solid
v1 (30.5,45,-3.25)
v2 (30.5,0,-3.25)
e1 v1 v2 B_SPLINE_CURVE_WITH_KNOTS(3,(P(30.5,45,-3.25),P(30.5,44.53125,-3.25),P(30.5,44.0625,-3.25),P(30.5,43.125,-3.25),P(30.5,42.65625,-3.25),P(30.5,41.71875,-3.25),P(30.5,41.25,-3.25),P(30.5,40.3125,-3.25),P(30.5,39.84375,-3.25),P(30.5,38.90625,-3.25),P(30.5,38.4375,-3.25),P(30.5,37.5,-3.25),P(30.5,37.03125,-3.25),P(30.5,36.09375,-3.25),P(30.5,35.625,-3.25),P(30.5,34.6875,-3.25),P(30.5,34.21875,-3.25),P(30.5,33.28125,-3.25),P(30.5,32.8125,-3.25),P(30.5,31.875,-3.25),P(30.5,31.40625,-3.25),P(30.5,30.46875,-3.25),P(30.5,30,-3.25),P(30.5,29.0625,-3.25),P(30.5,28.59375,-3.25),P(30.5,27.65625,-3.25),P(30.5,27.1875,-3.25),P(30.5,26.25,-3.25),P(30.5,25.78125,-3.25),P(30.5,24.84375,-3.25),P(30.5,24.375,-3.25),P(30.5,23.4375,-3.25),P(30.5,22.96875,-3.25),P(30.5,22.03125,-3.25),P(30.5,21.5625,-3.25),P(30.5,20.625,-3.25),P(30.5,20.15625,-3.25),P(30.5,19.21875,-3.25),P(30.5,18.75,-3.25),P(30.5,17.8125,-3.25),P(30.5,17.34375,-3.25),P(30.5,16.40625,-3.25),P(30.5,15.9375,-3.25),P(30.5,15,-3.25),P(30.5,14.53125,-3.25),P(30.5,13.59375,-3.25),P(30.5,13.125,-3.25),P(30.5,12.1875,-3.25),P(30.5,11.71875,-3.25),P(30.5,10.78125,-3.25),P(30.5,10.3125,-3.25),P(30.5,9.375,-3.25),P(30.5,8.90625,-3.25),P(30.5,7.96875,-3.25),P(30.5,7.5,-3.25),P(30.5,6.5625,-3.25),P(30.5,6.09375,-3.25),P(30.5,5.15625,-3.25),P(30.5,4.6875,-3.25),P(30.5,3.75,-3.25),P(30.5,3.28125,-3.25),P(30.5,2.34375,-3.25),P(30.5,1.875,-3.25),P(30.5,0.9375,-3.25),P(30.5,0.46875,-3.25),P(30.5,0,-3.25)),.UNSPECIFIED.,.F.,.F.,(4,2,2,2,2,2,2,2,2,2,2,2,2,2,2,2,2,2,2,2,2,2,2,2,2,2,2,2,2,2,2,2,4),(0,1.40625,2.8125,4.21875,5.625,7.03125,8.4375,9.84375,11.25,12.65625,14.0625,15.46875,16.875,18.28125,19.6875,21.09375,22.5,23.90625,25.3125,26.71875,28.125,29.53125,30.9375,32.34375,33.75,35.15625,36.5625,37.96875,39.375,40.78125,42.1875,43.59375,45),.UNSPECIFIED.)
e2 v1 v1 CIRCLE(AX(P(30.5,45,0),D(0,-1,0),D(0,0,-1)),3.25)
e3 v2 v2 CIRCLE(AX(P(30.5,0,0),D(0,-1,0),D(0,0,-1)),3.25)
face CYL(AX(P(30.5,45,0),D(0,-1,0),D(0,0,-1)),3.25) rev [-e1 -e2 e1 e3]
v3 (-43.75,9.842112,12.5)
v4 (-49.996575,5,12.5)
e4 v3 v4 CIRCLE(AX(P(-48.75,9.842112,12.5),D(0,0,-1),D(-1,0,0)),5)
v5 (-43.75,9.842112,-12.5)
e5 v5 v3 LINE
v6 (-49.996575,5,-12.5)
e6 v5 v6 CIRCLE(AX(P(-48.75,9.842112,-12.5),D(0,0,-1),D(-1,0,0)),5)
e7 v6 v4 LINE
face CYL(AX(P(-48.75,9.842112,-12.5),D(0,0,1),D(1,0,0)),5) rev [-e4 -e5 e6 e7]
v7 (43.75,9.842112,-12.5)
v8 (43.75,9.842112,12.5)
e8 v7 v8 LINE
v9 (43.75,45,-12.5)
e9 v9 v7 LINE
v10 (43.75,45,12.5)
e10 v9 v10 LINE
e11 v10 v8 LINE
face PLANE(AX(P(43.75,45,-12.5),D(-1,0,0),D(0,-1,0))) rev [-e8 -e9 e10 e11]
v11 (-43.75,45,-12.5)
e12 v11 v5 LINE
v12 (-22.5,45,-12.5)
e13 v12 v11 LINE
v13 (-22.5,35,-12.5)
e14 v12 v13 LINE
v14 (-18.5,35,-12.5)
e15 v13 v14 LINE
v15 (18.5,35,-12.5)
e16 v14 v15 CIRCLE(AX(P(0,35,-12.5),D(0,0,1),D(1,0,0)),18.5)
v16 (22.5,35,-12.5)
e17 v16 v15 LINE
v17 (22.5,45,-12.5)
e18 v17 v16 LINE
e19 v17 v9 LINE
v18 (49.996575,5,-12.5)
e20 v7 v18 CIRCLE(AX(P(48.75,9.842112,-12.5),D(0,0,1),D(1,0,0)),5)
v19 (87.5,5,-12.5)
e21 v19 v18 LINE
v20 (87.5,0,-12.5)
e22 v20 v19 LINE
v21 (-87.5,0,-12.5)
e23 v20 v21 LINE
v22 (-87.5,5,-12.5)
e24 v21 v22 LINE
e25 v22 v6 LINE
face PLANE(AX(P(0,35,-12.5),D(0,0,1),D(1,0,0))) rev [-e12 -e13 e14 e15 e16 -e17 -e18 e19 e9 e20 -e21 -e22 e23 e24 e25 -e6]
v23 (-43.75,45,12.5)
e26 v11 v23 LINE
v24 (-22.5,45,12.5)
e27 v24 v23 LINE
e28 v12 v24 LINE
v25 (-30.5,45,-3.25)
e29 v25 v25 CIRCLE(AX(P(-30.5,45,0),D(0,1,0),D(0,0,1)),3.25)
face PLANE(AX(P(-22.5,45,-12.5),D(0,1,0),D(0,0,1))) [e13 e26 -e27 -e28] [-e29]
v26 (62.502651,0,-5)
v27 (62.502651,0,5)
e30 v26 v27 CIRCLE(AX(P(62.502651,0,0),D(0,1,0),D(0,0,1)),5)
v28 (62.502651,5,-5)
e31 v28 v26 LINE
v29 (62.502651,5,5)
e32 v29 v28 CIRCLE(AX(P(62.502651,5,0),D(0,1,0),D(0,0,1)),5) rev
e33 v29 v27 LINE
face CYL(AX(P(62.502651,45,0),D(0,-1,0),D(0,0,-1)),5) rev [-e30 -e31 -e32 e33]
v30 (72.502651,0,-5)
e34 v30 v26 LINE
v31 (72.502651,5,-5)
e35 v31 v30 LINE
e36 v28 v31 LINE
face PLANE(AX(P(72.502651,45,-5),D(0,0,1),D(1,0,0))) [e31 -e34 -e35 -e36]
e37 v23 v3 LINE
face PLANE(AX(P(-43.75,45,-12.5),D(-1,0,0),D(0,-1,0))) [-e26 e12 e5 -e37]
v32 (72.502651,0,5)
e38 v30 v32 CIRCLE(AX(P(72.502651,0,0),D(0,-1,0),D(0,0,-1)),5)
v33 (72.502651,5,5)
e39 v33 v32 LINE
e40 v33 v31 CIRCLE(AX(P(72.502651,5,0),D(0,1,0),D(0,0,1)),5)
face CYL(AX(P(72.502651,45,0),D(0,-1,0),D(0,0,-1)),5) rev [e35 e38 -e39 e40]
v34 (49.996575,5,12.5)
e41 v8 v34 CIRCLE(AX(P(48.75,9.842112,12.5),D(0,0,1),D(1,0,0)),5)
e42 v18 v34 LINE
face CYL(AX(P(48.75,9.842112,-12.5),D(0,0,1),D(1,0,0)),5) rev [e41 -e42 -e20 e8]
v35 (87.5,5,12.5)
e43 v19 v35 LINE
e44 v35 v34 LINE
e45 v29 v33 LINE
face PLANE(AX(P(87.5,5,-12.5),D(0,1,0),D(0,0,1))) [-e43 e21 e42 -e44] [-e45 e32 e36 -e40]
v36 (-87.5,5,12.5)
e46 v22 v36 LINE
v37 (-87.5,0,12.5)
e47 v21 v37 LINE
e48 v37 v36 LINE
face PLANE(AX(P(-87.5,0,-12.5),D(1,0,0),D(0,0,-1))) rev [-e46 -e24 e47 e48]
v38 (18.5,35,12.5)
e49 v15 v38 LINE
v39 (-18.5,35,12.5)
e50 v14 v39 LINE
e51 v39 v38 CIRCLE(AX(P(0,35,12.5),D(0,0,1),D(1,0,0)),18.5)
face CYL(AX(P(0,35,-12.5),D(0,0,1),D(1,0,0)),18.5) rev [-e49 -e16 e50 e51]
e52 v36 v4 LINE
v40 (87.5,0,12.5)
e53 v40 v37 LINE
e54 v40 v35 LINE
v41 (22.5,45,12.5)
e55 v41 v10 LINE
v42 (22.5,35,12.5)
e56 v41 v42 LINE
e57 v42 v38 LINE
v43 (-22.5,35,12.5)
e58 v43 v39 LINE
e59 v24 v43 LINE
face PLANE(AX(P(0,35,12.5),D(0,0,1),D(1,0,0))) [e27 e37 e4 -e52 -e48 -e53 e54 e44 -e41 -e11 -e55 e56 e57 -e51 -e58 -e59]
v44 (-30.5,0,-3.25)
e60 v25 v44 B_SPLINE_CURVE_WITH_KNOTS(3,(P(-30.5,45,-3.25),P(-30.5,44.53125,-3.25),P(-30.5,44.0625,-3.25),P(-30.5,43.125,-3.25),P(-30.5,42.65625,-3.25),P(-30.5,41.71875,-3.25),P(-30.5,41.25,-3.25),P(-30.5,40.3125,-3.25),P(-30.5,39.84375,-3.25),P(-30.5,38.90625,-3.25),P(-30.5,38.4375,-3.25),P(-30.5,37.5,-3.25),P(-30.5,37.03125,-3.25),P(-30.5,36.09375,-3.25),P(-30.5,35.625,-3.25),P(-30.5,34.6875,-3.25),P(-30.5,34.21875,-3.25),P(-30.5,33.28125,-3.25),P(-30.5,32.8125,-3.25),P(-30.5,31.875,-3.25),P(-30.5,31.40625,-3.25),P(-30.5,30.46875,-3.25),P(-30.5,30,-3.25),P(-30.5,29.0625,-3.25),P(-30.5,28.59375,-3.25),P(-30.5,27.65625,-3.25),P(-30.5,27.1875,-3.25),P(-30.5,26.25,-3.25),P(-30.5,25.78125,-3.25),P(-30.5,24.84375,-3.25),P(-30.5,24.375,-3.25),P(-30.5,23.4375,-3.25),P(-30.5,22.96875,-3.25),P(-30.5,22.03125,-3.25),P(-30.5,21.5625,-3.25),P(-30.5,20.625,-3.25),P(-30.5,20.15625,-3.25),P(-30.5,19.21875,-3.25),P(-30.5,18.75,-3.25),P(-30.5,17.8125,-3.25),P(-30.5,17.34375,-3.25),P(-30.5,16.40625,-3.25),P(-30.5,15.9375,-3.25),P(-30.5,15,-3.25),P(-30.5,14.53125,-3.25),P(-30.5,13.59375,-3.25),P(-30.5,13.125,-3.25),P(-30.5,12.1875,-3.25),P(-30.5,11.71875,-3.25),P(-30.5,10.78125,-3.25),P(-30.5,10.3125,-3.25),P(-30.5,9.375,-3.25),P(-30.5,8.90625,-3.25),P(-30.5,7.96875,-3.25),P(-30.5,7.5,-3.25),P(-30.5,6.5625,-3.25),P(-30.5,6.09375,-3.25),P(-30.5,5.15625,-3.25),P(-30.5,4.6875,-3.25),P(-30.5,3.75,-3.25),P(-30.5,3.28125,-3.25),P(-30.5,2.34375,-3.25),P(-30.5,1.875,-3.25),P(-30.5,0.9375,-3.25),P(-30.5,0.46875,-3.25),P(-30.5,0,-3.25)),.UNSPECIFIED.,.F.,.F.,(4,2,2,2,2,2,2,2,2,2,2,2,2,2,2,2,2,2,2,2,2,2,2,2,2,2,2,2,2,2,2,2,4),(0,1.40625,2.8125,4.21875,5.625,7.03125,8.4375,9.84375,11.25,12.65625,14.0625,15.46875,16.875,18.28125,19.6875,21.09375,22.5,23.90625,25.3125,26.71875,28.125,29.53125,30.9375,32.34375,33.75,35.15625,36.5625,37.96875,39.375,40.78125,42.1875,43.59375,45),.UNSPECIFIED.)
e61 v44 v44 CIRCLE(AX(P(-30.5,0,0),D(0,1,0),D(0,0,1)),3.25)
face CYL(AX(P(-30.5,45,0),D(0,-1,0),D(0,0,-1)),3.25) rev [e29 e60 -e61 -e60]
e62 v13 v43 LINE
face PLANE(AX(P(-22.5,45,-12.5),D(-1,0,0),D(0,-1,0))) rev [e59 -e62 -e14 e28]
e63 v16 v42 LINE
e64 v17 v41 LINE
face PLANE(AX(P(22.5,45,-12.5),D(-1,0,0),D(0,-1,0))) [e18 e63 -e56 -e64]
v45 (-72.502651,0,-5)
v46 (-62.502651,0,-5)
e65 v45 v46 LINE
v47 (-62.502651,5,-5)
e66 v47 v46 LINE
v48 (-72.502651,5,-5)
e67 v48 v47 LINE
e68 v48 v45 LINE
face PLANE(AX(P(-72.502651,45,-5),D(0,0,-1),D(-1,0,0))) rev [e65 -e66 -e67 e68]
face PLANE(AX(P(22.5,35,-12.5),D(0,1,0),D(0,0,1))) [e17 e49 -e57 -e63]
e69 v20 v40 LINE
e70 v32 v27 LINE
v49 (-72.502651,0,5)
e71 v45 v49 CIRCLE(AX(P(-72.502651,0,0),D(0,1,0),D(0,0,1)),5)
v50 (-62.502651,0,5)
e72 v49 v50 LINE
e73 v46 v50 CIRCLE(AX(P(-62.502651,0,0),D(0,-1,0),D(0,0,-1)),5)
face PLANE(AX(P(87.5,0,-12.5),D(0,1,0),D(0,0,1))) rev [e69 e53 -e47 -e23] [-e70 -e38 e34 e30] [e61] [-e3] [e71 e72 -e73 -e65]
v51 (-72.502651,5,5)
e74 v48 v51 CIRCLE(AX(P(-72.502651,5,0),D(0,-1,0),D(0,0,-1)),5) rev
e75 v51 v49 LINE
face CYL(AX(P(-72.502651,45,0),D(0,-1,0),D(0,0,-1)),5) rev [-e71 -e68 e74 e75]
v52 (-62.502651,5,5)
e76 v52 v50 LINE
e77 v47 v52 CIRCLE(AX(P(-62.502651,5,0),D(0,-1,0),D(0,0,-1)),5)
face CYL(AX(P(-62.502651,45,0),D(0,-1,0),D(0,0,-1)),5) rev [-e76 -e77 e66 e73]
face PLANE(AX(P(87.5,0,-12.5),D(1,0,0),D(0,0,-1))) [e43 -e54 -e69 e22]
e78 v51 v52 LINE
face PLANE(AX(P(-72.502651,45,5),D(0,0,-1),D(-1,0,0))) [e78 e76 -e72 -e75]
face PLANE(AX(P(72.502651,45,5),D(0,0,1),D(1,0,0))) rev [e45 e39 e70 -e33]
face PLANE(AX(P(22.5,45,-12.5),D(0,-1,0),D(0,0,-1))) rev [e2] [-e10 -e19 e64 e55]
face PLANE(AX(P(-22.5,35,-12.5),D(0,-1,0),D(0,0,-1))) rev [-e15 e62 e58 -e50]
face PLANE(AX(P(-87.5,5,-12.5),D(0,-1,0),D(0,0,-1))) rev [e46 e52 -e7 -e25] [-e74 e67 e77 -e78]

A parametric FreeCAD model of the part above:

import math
import FreeCAD as App
import Part
import Sketcher

V = App.Vector

doc = App.newDocument("Part")
params = doc.addObject("Spreadsheet::Sheet", "Params")
for row, (alias, value) in enumerate([
    ("sketch1_radius", "5 mm"),
    ("sketch1_radius2", "18.5 mm"),
    ("sketch1_width", "175 mm"),
    ("sketch1_width2", "4 mm"),
    ("sketch1_height", "5 mm"),
    ("pad1_length", "12.5 mm"),
    ("pad1_length2", "12.5 mm"),
    ("sketch2_radius", "5 mm"),
    ("sketch2_diameter", "6.5 mm"),
    ("sketch2_width", "10 mm"),
    ("pocket1_length", "45 mm"),
], start=1):
    params.set(f"A{row}", alias)
    params.set(f"B{row}", "=" + value)
    params.setAlias(f"B{row}", alias)

body = doc.addObject("PartDesign::Body", "Body")

sketch1 = body.newObject("Sketcher::SketchObject", "Sketch")
sketch1.AttachmentSupport = (doc.getObject("XY_Plane"), [""])
sketch1.MapMode = "FlatFace"
sketch1.addGeometry([
    Part.LineSegment(V(-87.5, 0, 0), V(87.5, 0, 0)),
    Part.LineSegment(V(87.5, 0, 0), V(87.5, 5, 0)),
    Part.LineSegment(V(87.5, 5, 0), V(49.996575, 5, 0)),
    Part.ArcOfCircle(Part.Circle(V(48.75, 9.842112, 0), V(0, 0, 1), 5), math.radians(-180), math.radians(-75.563022)),
    Part.LineSegment(V(43.75, 9.842112, 0), V(43.75, 45, 0)),
    Part.LineSegment(V(43.75, 45, 0), V(22.5, 45, 0)),
    Part.LineSegment(V(22.5, 45, 0), V(22.5, 35, 0)),
    Part.LineSegment(V(22.5, 35, 0), V(18.5, 35, 0)),
    Part.ArcOfCircle(Part.Circle(V(0, 35, 0), V(0, 0, 1), 18.5), math.radians(180), math.radians(360)),
    Part.LineSegment(V(-18.5, 35, 0), V(-22.5, 35, 0)),
    Part.LineSegment(V(-22.5, 35, 0), V(-22.5, 45, 0)),
    Part.LineSegment(V(-22.5, 45, 0), V(-43.75, 45, 0)),
    Part.LineSegment(V(-43.75, 45, 0), V(-43.75, 9.842112, 0)),
    Part.ArcOfCircle(Part.Circle(V(-48.75, 9.842112, 0), V(0, 0, 1), 5), math.radians(-104.436978), math.radians(0)),
    Part.LineSegment(V(-49.996575, 5, 0), V(-87.5, 5, 0)),
    Part.LineSegment(V(-87.5, 5, 0), V(-87.5, 0, 0)),
], False)
sketch1.addConstraint([
    Sketcher.Constraint("Coincident", 0, 2, 1, 1),
    Sketcher.Constraint("Coincident", 1, 2, 2, 1),
    Sketcher.Constraint("Coincident", 2, 2, 3, 2),
    Sketcher.Constraint("Tangent", 3, 1, 4, 1),
    Sketcher.Constraint("Coincident", 4, 2, 5, 1),
    Sketcher.Constraint("Coincident", 5, 2, 6, 1),
    Sketcher.Constraint("Coincident", 6, 2, 7, 1),
    Sketcher.Constraint("Coincident", 7, 2, 8, 2),
    Sketcher.Constraint("Coincident", 8, 1, 9, 1),
    Sketcher.Constraint("Coincident", 9, 2, 10, 1),
    Sketcher.Constraint("Coincident", 10, 2, 11, 1),
    Sketcher.Constraint("Coincident", 11, 2, 12, 1),
    Sketcher.Constraint("Tangent", 12, 2, 13, 2),
    Sketcher.Constraint("Coincident", 13, 1, 14, 1),
    Sketcher.Constraint("Coincident", 14, 2, 15, 1),
    Sketcher.Constraint("Coincident", 15, 2, 0, 1),
    Sketcher.Constraint("Horizontal", 0),
    Sketcher.Constraint("Vertical", 1),
    Sketcher.Constraint("Horizontal", 2),
    Sketcher.Constraint("Vertical", 4),
    Sketcher.Constraint("Horizontal", 5),
    Sketcher.Constraint("Vertical", 6),
    Sketcher.Constraint("Horizontal", 7),
    Sketcher.Constraint("Horizontal", 9),
    Sketcher.Constraint("Vertical", 10),
    Sketcher.Constraint("Horizontal", 11),
    Sketcher.Constraint("Vertical", 12),
    Sketcher.Constraint("Horizontal", 14),
    Sketcher.Constraint("Vertical", 15),
    Sketcher.Constraint("Equal", 3, 13),
    Sketcher.Constraint("Symmetric", 0, 2, 15, 2, -1, 1),
    Sketcher.Constraint("Symmetric", 3, 3, 13, 3, -2),
    Sketcher.Constraint("Symmetric", 7, 2, 8, 1, -2),
    Sketcher.Constraint("Symmetric", 5, 2, 10, 2, -2),
    Sketcher.Constraint("Horizontal", 8, 3, 6, 2),
    Sketcher.Constraint("Horizontal", 2, 2, 13, 1),
    Sketcher.Constraint("Radius", 3, 5.0),
    Sketcher.Constraint("Radius", 8, 18.5),
    Sketcher.Constraint("DistanceX", 0, 1, 0, 2, 175.0),
    Sketcher.Constraint("DistanceX", 7, 2, 7, 1, 4.0),
    Sketcher.Constraint("DistanceY", 1, 1, 1, 2, 5.0),
    Sketcher.Constraint("DistanceY", 6, 2, 6, 1, 10.0),
    Sketcher.Constraint("DistanceY", -1, 1, 8, 3, 35.0),
    Sketcher.Constraint("DistanceX", 5, 2, 5, 1, 21.25),
    Sketcher.Constraint("DistanceX", 2, 2, 2, 1, 37.503425),
])
sketch1.setExpression("Constraints[36]", "Params.sketch1_radius")
sketch1.setExpression("Constraints[37]", "Params.sketch1_radius2")
sketch1.setExpression("Constraints[38]", "Params.sketch1_width")
sketch1.setExpression("Constraints[39]", "Params.sketch1_width2")
sketch1.setExpression("Constraints[40]", "Params.sketch1_height")
pad1 = body.newObject("PartDesign::Pad", "Pad")
pad1.Profile = sketch1
pad1.Type = "TwoLengths"
pad1.setExpression("Length", "Params.pad1_length")
pad1.setExpression("Length2", "Params.pad1_length2")

sketch2 = body.newObject("Sketcher::SketchObject", "Sketch001")
sketch2.AttachmentSupport = (doc.getObject("XZ_Plane"), [""])
sketch2.MapMode = "FlatFace"
sketch2.addGeometry([
    Part.Circle(V(-30.5, 0, 0), V(0, 0, 1), 3.25),
    Part.Circle(V(30.5, 0, 0), V(0, 0, 1), 3.25),
    Part.LineSegment(V(-62.502651, -5, 0), V(-72.502651, -5, 0)),
    Part.ArcOfCircle(Part.Circle(V(-72.502651, 0, 0), V(0, 0, 1), 5), math.radians(90), math.radians(270)),
    Part.LineSegment(V(-72.502651, 5, 0), V(-62.502651, 5, 0)),
    Part.ArcOfCircle(Part.Circle(V(-62.502651, 0, 0), V(0, 0, 1), 5), math.radians(-90), math.radians(90)),
    Part.LineSegment(V(62.502651, 5, 0), V(72.502651, 5, 0)),
    Part.ArcOfCircle(Part.Circle(V(72.502651, 0, 0), V(0, 0, 1), 5), math.radians(-90), math.radians(90)),
    Part.LineSegment(V(72.502651, -5, 0), V(62.502651, -5, 0)),
    Part.ArcOfCircle(Part.Circle(V(62.502651, 0, 0), V(0, 0, 1), 5), math.radians(90), math.radians(270)),
], False)
sketch2.addConstraint([
    Sketcher.Constraint("Tangent", 2, 2, 3, 2),
    Sketcher.Constraint("Tangent", 3, 1, 4, 1),
    Sketcher.Constraint("Tangent", 4, 2, 5, 2),
    Sketcher.Constraint("Tangent", 5, 1, 2, 1),
    Sketcher.Constraint("Tangent", 6, 2, 7, 2),
    Sketcher.Constraint("Tangent", 7, 1, 8, 1),
    Sketcher.Constraint("Tangent", 8, 2, 9, 2),
    Sketcher.Constraint("Tangent", 9, 1, 6, 1),
    Sketcher.Constraint("Horizontal", 2),
    Sketcher.Constraint("Horizontal", 4),
    Sketcher.Constraint("Horizontal", 6),
    Sketcher.Constraint("Horizontal", 8),
    Sketcher.Constraint("Equal", 0, 1),
    Sketcher.Constraint("Equal", 5, 7),
    Sketcher.Constraint("Symmetric", 0, 3, 1, 3, -1, 1),
    Sketcher.Constraint("Symmetric", 3, 3, 7, 3, -1, 1),
    Sketcher.Constraint("Symmetric", 5, 3, 9, 3, -2),
    Sketcher.Constraint("PointOnObject", 0, 3, -1),
    Sketcher.Constraint("Radius", 3, 5.0),
    Sketcher.Constraint("Diameter", 0, 6.5),
    Sketcher.Constraint("DistanceX", 2, 2, 2, 1, 10.0),
    Sketcher.Constraint("DistanceX", 0, 3, 1, 3, 61.0),
    Sketcher.Constraint("DistanceX", 5, 3, 7, 3, 135.005301),
])
sketch2.setExpression("Constraints[18]", "Params.sketch2_radius")
sketch2.setExpression("Constraints[19]", "Params.sketch2_diameter")
sketch2.setExpression("Constraints[20]", "Params.sketch2_width")
pocket1 = body.newObject("PartDesign::Pocket", "Pocket")
pocket1.Profile = sketch2
pocket1.setExpression("Length", "Params.pocket1_length")

doc.recompute()
